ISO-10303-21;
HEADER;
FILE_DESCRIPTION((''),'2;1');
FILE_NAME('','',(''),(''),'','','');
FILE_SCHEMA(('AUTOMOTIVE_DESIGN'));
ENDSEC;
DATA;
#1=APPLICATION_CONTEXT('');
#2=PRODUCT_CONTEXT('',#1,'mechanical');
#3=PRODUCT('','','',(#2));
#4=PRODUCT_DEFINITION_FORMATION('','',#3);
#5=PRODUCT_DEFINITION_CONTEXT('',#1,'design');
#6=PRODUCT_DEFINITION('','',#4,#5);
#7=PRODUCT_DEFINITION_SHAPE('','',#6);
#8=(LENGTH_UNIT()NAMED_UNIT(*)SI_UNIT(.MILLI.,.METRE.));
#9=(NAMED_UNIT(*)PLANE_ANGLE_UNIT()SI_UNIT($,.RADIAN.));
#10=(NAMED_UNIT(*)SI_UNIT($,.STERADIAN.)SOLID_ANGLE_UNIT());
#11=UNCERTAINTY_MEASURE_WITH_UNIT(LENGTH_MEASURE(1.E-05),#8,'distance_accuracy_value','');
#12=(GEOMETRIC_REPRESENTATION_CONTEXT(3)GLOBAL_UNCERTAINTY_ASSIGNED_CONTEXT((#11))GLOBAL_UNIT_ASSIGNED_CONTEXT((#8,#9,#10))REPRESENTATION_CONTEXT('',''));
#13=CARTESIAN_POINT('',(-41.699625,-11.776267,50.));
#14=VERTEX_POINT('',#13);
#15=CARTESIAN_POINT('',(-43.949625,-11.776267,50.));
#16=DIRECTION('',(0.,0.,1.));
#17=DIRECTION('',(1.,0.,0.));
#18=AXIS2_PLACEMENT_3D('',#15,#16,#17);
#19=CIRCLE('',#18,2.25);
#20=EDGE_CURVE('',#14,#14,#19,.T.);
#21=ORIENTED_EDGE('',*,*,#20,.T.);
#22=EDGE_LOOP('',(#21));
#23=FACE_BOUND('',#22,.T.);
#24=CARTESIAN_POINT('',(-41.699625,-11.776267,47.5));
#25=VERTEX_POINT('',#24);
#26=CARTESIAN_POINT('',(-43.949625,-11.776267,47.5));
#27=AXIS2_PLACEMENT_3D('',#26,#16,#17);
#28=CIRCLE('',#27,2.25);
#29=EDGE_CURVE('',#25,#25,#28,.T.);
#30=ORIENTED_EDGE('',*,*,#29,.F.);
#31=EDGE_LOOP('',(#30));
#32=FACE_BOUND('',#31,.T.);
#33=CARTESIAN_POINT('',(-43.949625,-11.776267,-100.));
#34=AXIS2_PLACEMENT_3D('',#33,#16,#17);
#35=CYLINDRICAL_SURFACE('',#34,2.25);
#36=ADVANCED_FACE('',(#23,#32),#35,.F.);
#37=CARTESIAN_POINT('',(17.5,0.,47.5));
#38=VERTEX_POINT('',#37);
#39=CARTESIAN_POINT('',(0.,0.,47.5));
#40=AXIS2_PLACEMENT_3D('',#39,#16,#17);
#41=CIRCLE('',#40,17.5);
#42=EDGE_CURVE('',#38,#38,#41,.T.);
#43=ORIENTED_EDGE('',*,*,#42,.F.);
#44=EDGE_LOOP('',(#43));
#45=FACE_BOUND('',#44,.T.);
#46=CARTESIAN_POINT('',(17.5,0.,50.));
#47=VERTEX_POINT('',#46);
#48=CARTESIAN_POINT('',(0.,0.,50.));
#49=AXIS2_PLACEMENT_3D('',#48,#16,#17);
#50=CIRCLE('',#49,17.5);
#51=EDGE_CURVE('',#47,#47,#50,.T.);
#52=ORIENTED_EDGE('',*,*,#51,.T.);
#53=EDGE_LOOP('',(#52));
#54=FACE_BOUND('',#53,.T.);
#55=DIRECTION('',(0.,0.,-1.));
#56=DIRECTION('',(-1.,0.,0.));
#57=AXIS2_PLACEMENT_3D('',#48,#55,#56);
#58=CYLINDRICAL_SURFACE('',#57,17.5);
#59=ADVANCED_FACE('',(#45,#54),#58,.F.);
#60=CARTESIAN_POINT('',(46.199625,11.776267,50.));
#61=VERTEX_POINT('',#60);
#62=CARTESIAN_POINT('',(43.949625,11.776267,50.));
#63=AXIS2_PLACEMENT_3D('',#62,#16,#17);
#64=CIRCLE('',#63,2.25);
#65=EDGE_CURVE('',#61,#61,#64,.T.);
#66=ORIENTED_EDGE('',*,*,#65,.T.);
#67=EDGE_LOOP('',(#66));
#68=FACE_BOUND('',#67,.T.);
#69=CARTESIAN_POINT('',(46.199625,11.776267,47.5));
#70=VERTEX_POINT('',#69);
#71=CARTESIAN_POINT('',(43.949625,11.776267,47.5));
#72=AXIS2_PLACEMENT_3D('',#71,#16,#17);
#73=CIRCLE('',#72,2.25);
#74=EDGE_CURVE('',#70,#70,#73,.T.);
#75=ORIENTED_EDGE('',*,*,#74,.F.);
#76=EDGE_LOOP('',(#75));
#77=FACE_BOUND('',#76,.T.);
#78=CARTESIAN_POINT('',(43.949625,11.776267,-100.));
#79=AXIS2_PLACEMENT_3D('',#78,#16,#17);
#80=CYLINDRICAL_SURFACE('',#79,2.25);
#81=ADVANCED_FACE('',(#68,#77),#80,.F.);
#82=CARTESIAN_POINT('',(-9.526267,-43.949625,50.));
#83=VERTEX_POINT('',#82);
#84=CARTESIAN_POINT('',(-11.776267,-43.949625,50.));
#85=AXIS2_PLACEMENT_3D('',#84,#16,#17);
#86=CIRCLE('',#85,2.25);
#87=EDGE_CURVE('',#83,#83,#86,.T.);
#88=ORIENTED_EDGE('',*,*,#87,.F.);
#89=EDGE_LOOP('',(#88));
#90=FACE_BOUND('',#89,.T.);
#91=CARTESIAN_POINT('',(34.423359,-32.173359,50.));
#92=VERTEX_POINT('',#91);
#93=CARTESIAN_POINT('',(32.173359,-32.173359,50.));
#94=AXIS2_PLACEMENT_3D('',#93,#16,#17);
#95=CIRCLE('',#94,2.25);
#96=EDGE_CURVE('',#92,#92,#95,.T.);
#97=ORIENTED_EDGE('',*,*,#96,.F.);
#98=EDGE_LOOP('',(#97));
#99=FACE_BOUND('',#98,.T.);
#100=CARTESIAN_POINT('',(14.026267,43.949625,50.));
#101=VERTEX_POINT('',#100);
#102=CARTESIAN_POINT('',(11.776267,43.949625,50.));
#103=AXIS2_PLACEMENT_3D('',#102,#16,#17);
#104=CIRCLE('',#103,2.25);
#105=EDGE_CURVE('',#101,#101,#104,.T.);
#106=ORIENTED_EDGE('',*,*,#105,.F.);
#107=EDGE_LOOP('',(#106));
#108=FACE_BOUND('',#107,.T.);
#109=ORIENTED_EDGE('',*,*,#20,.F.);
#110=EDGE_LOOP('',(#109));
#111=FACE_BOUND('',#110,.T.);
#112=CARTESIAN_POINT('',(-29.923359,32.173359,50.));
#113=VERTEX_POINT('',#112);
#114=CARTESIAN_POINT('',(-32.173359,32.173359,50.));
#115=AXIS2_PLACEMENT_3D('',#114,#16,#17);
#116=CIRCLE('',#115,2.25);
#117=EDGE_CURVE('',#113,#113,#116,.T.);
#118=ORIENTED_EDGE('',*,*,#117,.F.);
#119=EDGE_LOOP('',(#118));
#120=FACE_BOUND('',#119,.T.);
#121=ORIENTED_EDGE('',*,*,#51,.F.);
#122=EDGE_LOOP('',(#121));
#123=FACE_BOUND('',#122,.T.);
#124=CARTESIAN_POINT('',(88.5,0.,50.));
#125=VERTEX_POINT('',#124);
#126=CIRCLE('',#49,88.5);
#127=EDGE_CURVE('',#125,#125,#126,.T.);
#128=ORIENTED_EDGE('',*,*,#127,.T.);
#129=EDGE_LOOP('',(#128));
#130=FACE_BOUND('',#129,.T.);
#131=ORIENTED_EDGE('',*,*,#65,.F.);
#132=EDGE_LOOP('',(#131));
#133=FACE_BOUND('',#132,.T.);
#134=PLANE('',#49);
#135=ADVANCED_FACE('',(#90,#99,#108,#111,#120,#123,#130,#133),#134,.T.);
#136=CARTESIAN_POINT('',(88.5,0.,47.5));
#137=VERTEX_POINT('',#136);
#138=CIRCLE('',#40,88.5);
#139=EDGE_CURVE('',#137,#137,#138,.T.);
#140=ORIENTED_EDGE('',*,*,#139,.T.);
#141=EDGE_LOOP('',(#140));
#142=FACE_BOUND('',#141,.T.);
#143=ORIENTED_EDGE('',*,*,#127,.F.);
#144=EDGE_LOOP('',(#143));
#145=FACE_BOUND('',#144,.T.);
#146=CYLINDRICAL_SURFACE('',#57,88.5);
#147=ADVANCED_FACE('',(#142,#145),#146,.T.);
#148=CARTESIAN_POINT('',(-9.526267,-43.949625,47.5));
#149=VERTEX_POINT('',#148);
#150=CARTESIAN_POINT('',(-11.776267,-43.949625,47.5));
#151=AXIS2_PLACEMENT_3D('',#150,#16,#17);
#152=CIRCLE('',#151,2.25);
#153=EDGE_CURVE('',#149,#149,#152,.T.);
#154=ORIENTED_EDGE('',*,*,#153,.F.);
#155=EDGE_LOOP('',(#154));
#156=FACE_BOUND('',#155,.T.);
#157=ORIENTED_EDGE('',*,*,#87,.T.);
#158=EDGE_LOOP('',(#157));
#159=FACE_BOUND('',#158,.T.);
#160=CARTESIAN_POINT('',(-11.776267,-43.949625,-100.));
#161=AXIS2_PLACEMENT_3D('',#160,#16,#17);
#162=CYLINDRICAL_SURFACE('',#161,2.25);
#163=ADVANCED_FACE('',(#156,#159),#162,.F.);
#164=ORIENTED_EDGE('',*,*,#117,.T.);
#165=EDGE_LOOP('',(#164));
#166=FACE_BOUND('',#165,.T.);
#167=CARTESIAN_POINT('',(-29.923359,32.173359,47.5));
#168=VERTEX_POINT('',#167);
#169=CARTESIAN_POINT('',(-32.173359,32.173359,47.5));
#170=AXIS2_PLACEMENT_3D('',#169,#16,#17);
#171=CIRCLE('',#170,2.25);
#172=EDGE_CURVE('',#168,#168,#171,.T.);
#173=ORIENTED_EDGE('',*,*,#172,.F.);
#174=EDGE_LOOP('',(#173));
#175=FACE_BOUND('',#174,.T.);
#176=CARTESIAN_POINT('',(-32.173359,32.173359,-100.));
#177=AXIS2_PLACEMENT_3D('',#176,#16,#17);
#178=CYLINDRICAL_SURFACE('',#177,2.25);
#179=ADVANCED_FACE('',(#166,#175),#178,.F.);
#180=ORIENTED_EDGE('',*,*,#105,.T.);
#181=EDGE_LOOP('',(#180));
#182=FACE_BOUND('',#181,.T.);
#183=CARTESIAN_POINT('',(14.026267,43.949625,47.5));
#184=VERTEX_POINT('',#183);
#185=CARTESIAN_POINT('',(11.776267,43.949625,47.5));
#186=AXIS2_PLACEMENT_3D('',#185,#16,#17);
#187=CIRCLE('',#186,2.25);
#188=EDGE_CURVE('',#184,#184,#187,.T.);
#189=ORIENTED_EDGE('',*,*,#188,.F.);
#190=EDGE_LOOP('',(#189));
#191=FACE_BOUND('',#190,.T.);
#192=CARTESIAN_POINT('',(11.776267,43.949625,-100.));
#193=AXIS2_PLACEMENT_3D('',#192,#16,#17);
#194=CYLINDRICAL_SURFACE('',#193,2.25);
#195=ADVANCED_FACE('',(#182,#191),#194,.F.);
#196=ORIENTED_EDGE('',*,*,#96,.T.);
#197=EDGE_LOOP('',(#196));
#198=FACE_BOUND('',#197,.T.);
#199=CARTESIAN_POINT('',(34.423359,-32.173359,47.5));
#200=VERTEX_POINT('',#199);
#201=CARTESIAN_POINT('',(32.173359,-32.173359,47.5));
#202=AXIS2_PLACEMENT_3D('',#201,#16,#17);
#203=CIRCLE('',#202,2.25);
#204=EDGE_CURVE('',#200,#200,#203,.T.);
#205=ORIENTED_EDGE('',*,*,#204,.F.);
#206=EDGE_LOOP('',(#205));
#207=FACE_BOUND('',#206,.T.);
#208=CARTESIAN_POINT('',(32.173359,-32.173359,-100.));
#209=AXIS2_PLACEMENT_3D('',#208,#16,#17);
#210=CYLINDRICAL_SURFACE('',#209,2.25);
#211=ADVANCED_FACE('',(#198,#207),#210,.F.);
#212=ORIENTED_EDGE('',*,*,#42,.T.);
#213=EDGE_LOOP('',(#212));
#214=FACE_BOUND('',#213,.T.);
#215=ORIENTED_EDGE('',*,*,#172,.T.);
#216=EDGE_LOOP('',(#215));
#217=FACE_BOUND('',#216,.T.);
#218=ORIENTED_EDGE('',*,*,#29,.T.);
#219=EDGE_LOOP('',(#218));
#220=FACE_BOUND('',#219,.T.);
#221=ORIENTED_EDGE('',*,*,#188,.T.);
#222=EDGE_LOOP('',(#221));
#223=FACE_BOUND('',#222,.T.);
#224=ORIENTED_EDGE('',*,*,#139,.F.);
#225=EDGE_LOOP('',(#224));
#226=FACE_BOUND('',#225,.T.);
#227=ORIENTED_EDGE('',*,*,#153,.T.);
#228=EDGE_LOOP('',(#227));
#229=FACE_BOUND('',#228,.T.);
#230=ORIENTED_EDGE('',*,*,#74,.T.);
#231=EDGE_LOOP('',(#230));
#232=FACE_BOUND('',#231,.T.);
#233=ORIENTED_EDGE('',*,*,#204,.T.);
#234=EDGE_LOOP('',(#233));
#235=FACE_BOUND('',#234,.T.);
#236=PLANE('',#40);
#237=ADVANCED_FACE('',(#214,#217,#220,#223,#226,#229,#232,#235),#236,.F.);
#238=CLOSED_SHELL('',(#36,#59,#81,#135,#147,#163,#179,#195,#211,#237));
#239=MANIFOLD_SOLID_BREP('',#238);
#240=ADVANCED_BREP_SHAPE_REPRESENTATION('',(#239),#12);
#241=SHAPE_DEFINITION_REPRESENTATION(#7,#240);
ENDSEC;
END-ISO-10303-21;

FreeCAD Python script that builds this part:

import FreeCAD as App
import Part
import Sketcher

V = App.Vector
Q = App.Units.Quantity

doc = App.newDocument("Part")
body = doc.addObject("PartDesign::Body", "Body")

# Sketch on XY plane
sketch1 = body.newObject("Sketcher::SketchObject", "Sketch")
sketch1.AttachmentSupport = (doc.getObject("XY_Plane"), [""])
sketch1.MapMode = "FlatFace"
sketch1.AttachmentOffset = App.Placement(V(0, 0, 47.5), App.Rotation())
sketch1.addGeometry([
    Part.Circle(V(0, 0, 0), V(0, 0, 1), 88),
    Part.Circle(V(0, 0, 0), V(0, 0, 1), 18),
], False)
sketch1.addConstraint([
    Sketcher.Constraint("Coincident", 0, 3, -1, 1),
    Sketcher.Constraint("Coincident", 1, 3, -1, 1),
    Sketcher.Constraint("Diameter", 0, Q("177 mm")),
    Sketcher.Constraint("Diameter", 1, Q("35 mm")),
])
pad1 = body.newObject("PartDesign::Pad", "Pad")
pad1.Profile = sketch1
pad1.Length = 2.5

# Sketch on XY plane
sketch2 = body.newObject("Sketcher::SketchObject", "Sketch001")
sketch2.AttachmentSupport = (doc.getObject("XY_Plane"), [""])
sketch2.MapMode = "FlatFace"
sketch2.addGeometry([
    Part.Circle(V(43.9, 11.8, 0), V(0, 0, 1), 2.2),  # 0
    Part.Circle(V(11.8, 43.9, 0), V(0, 0, 1), 2.2),  # 1
    Part.Circle(V(-32.2, 32.2, 0), V(0, 0, 1), 2.2),  # 2
    Part.Circle(V(-43.9, -11.8, 0), V(0, 0, 1), 2.2),  # 3
    Part.Circle(V(-11.8, -43.9, 0), V(0, 0, 1), 2.2),  # 4
    Part.Circle(V(32.2, -32.2, 0), V(0, 0, 1), 2.2),  # 5
], False)
sketch2.addConstraint([
    Sketcher.Constraint("Equal", 0, 1),
    Sketcher.Constraint("Equal", 1, 2),
    Sketcher.Constraint("Equal", 2, 3),
    Sketcher.Constraint("Equal", 3, 4),
    Sketcher.Constraint("Equal", 4, 5),
    Sketcher.Constraint("Symmetric", 0, 3, 3, 3, -1, 1),
    Sketcher.Constraint("Symmetric", 1, 3, 4, 3, -1, 1),
    Sketcher.Constraint("Symmetric", 2, 3, 5, 3, -1, 1),
    Sketcher.Constraint("Diameter", 0, Q("4.5 mm")),
    Sketcher.Constraint("DistanceX", 2, 3, -1, 1, Q("32.173359 mm")),
    Sketcher.Constraint("DistanceY", -1, 1, 2, 3, Q("32.173359 mm")),
    Sketcher.Constraint("DistanceX", 1, 3, 0, 3, Q("32.173359 mm")),
    Sketcher.Constraint("DistanceY", 0, 3, 1, 3, Q("32.173359 mm")),
    Sketcher.Constraint("DistanceY", 0, 3, 2, 3, Q("20.397092 mm")),
    Sketcher.Constraint("DistanceX", 3, 3, 1, 3, Q("55.725892 mm")),
])
pocket1 = body.newObject("PartDesign::Pocket", "Pocket")
pocket1.Profile = sketch2
pocket1.Length = 200
pocket1.Midplane = True

doc.recompute()
